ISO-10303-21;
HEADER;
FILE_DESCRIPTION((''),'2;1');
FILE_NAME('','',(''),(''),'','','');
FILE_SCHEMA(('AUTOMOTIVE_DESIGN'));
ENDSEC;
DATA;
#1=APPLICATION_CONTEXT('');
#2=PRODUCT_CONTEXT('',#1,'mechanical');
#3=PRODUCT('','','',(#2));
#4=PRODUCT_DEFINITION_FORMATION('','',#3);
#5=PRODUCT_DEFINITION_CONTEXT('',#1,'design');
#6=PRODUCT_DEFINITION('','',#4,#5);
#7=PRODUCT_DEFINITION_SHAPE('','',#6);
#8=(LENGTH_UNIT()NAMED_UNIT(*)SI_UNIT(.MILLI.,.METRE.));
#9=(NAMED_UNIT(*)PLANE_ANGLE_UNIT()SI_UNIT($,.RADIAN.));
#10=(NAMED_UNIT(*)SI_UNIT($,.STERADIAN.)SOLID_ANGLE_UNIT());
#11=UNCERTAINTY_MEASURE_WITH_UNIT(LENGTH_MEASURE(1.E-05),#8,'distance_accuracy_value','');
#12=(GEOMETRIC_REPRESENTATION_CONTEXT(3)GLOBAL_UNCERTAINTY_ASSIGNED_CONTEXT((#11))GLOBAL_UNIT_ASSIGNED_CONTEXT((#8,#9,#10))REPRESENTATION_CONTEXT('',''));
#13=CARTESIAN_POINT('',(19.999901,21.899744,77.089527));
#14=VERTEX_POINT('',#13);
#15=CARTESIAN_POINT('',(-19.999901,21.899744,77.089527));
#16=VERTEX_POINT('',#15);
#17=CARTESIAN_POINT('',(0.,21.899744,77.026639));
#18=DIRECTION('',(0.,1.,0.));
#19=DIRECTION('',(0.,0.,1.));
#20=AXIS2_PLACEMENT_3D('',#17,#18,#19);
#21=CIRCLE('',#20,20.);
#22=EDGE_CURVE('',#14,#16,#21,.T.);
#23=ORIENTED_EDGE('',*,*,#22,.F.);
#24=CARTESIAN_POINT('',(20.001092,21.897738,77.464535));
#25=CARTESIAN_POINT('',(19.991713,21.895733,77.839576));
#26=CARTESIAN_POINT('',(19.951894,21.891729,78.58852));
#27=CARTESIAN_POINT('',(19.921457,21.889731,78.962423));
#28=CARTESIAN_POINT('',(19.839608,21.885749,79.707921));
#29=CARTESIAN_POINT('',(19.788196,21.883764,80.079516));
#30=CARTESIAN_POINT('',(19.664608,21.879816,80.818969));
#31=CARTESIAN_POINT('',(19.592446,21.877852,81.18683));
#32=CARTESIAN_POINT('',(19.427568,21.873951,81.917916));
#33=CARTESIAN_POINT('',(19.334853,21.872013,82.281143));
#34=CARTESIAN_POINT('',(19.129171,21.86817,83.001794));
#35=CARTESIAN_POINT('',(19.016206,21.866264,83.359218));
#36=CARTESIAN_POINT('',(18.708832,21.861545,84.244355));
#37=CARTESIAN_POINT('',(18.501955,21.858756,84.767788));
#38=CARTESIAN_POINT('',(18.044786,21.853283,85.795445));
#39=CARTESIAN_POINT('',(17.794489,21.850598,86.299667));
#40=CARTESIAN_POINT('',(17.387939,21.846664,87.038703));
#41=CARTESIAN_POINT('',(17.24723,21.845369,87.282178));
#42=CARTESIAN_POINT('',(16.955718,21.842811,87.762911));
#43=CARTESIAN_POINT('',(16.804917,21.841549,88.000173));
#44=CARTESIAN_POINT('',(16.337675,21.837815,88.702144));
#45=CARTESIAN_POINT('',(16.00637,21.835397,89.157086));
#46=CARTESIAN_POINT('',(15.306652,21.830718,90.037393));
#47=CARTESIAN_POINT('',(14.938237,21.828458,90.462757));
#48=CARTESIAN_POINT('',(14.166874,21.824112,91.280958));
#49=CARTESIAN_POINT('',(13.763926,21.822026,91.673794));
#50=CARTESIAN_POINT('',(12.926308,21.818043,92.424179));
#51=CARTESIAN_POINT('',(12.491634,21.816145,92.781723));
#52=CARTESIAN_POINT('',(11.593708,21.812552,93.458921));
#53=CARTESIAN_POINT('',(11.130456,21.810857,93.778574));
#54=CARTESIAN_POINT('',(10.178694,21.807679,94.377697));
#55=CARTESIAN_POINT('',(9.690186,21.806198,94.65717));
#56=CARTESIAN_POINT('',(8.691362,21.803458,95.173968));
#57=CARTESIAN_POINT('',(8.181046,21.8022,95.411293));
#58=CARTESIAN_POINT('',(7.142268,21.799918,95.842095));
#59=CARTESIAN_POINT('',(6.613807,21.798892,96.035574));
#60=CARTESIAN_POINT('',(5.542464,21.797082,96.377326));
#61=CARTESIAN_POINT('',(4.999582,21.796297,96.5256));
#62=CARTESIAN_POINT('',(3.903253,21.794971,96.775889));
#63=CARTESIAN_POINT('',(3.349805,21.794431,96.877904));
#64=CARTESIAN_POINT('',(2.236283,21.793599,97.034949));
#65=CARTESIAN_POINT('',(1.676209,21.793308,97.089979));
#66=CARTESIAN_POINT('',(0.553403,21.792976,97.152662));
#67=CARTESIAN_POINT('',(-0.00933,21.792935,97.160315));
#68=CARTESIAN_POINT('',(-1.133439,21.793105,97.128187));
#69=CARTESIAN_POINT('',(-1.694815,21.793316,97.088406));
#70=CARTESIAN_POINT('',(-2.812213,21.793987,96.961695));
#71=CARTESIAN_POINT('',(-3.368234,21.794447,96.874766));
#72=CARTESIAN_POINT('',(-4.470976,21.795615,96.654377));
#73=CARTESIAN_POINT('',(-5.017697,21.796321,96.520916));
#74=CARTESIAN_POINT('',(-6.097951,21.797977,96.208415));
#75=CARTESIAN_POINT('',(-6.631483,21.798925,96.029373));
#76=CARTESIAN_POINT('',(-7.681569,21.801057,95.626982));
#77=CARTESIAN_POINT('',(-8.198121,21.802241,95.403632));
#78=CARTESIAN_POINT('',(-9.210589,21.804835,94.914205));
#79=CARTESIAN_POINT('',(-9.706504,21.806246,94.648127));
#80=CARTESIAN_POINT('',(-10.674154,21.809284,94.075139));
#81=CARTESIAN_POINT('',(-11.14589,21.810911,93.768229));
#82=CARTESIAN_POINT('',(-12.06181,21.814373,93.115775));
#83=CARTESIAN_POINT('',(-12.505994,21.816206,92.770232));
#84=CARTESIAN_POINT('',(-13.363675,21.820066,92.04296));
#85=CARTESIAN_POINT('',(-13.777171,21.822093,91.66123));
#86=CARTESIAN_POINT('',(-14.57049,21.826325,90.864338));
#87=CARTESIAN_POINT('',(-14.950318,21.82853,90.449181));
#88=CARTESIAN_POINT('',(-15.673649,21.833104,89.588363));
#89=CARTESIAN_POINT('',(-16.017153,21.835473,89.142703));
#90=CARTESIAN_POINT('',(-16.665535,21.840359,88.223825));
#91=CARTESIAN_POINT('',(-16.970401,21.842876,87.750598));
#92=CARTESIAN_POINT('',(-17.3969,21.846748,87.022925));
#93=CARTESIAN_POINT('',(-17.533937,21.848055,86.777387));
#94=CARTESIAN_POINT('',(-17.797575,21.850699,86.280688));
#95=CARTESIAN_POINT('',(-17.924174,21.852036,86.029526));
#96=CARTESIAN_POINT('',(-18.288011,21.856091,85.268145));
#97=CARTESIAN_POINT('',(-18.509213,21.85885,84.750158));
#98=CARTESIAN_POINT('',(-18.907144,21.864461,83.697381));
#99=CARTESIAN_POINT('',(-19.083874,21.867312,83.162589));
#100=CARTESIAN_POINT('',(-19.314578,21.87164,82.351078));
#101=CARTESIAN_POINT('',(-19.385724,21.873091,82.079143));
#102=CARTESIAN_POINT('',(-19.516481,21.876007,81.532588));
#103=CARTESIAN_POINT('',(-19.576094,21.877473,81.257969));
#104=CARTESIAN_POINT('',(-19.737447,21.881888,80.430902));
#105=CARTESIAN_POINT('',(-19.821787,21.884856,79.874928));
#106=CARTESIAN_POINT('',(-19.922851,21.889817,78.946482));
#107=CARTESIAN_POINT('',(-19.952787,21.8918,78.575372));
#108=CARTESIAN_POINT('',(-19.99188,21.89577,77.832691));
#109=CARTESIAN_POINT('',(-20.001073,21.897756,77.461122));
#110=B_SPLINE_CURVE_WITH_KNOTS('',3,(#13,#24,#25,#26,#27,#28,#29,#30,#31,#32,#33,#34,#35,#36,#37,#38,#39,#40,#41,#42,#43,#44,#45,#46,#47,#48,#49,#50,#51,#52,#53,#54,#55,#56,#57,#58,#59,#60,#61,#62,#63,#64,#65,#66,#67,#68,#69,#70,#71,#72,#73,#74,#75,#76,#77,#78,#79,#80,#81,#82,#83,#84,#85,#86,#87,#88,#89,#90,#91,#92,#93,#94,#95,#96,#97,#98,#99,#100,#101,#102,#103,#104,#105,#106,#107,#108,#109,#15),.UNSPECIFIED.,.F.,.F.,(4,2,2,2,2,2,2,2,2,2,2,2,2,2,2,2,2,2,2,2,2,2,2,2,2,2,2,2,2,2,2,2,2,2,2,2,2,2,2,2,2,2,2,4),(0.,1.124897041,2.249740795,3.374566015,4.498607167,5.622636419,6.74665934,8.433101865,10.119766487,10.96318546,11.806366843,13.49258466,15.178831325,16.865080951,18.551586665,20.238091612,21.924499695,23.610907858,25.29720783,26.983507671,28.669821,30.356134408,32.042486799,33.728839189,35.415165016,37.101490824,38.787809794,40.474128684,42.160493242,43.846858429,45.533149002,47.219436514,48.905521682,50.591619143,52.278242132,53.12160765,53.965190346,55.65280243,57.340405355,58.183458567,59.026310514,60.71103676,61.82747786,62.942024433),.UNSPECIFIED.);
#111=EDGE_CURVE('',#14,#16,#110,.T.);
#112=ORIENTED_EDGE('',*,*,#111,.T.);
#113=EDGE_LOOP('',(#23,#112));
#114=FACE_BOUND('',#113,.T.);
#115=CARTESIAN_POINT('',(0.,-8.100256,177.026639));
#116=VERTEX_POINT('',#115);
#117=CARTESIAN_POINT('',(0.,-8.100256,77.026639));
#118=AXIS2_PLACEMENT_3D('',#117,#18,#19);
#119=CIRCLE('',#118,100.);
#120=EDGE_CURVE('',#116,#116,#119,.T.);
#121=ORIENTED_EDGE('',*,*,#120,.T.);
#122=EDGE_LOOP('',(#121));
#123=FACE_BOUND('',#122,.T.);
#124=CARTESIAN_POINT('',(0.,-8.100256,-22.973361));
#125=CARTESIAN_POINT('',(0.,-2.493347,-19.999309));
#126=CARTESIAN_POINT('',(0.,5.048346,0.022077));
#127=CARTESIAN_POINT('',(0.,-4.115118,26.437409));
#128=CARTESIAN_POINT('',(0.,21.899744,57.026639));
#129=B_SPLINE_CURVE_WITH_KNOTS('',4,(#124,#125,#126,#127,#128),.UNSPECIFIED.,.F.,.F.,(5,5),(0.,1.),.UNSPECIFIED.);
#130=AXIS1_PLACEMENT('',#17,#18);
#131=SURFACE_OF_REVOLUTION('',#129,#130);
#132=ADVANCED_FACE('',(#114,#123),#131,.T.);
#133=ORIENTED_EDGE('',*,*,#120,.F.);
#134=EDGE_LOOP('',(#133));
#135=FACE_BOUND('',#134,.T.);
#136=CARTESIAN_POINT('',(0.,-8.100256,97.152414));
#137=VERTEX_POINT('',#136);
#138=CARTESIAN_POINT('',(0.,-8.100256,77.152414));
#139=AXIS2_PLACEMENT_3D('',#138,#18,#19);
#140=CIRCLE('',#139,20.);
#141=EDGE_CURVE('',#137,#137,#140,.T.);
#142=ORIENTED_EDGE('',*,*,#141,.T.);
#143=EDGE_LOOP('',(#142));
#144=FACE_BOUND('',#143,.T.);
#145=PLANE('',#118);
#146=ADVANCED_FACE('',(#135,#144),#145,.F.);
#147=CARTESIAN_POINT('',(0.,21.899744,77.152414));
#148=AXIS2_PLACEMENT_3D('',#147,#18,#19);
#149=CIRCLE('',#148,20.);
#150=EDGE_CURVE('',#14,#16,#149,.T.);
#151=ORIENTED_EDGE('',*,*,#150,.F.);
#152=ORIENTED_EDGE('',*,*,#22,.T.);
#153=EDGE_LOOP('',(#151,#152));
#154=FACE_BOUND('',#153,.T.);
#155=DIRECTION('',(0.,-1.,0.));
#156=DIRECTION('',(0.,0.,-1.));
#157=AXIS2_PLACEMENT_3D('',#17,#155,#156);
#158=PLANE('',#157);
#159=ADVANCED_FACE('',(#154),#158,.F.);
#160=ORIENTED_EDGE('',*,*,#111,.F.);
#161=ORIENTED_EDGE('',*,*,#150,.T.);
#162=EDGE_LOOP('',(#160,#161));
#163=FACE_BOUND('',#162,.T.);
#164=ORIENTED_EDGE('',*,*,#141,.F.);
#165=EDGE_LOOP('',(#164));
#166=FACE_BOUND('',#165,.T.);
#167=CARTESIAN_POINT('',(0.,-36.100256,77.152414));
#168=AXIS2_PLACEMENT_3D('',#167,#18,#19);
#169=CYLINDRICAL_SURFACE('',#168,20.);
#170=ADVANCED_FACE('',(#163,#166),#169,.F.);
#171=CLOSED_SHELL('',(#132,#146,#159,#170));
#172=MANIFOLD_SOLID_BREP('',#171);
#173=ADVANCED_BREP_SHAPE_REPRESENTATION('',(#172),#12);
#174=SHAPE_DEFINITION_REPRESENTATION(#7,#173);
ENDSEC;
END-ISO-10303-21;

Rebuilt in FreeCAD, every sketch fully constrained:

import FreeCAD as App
import Part
import Sketcher

V = App.Vector

doc = App.newDocument("Part")
params = doc.addObject("Spreadsheet::Sheet", "Params")
for row, (alias, value) in enumerate([
    ("sketch1_height", "100 mm"),
    ("revolution_angle", "360 deg"),
    ("sketch2_diameter", "40 mm"),
    ("pocket1_length", "58 mm"),
], start=1):
    params.set(f"A{row}", alias)
    params.set(f"B{row}", "=" + value)
    params.setAlias(f"B{row}", alias)

body = doc.addObject("PartDesign::Body", "Body")

sketch1 = body.newObject("Sketcher::SketchObject", "Sketch")
sketch1.AttachmentSupport = (doc.getObject("YZ_Plane"), [""])
sketch1.MapMode = "FlatFace"
sketch1.addGeometry([
    Part.LineSegment(V(21.899744, 77.026639, 0), V(-8.100256, 77.026639, 0)),
    Part.LineSegment(V(-8.100256, 77.026639, 0), V(-8.100256, -22.973361, 0)),
    Part.BSplineCurve([V(-8.100256, -22.973361, 0), V(-2.493347, -19.999309, 0), V(5.048346, 0.022077, 0), V(-4.115118, 26.437409, 0), V(21.899744, 57.026639, 0)], [5, 5], [0, 1], False, 4, [1, 1, 1, 1, 1], False),
    Part.LineSegment(V(21.899744, 57.026639, 0), V(21.899744, 77.026639, 0)),
], False)
sketch1.addGeometry(Part.LineSegment(V(21.899744, 77.026639, 0), V(-8.100256, 77.026639, 0)), True)
sketch1.addConstraint([
    Sketcher.Constraint("Block", 2),
    Sketcher.Constraint("Coincident", 0, 2, 1, 1),
    Sketcher.Constraint("Coincident", 1, 2, 2, 1),
    Sketcher.Constraint("Coincident", 2, 2, 3, 1),
    Sketcher.Constraint("Coincident", 3, 2, 0, 1),
    Sketcher.Constraint("Horizontal", 0),
    Sketcher.Constraint("Vertical", 1),
    Sketcher.Constraint("Vertical", 3),
    Sketcher.Constraint("Horizontal", 4),
    Sketcher.Constraint("Coincident", 4, 1, 3, 2),
    Sketcher.Constraint("Vertical", 1, 2, 4, 2),
    Sketcher.Constraint("DistanceY", 1, 2, 1, 1, 100.0),
])
sketch1.setExpression("Constraints[11]", "Params.sketch1_height")
revolution = body.newObject("PartDesign::Revolution", "Revolution")
revolution.Profile = sketch1
revolution.ReferenceAxis = (sketch1, ["Axis0"])
revolution.setExpression("Angle", "Params.revolution_angle")

sketch2 = body.newObject("Sketcher::SketchObject", "Sketch001")
sketch2.AttachmentSupport = (doc.getObject("XZ_Plane"), [""])
sketch2.MapMode = "FlatFace"
sketch2.AttachmentOffset = App.Placement(V(0, 0, -21.899744), App.Rotation())
sketch2.addGeometry(Part.Circle(V(0, 77, 0), V(0, 0, 1), 20), False)
sketch2.addConstraint([
    Sketcher.Constraint("PointOnObject", 0, 3, -2),
    Sketcher.Constraint("Diameter", 0, 40.0),
    Sketcher.Constraint("DistanceY", -1, 1, 0, 3, 77.152414),
])
sketch2.setExpression("Constraints[1]", "Params.sketch2_diameter")
pocket1 = body.newObject("PartDesign::Pocket", "Pocket")
pocket1.Profile = sketch2
pocket1.setExpression("Length", "Params.pocket1_length")
pocket1.Reversed = True

doc.recompute()
